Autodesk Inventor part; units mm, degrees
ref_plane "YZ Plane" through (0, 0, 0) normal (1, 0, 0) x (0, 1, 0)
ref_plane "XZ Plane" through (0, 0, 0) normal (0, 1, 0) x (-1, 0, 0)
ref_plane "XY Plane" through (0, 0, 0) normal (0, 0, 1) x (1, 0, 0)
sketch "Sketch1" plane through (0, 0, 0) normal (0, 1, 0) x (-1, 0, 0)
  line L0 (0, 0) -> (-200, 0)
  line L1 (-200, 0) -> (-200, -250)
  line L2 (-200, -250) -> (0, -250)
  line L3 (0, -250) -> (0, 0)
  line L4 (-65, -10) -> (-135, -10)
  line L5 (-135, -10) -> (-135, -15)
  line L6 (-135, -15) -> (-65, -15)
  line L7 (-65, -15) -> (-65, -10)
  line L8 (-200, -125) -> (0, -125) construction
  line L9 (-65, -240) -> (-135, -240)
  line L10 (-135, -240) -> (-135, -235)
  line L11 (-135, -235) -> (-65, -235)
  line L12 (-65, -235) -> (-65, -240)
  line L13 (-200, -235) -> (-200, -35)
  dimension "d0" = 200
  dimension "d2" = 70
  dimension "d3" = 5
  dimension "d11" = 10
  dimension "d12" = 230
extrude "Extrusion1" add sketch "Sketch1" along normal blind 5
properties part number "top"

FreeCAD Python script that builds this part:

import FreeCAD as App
import Part
import Sketcher
from FreeCAD import Vector
Q = App.Units.Quantity

doc = App.newDocument("Part")
params = doc.addObject("Spreadsheet::Sheet", "Params")
for row, (alias, value) in enumerate([
    ("sketch1_width", "200 mm"),
    ("sketch1_width2", "70 mm"),
    ("sketch1_height", "5 mm"),
    ("pad1_length", "5 mm"),
], start=1):
    params.set(f"A{row}", alias)
    params.set(f"B{row}", "=" + value)
    params.setAlias(f"B{row}", alias)

body = doc.addObject("PartDesign::Body", "Body")

# Sketch on XZ plane
sketch1 = doc.addObject("Sketcher::SketchObject", "Sketch")
body.addObject(sketch1)
sketch1.AttachmentSupport = (doc.XZ_Plane, [""])
sketch1.MapMode = "FlatFace"
sketch1.addGeometry([
    Part.LineSegment(Vector(0, -250, 0), Vector(0, 0, 0)),  # 0
    Part.LineSegment(Vector(0, 0, 0), Vector(200, 0, 0)),  # 1
    Part.LineSegment(Vector(200, 0, 0), Vector(200, -250, 0)),  # 2
    Part.LineSegment(Vector(200, -250, 0), Vector(0, -250, 0)),  # 3
    Part.LineSegment(Vector(65, -235, 0), Vector(65, -240, 0)),  # 4
    Part.LineSegment(Vector(65, -240, 0), Vector(135, -240, 0)),  # 5
    Part.LineSegment(Vector(135, -240, 0), Vector(135, -235, 0)),  # 6
    Part.LineSegment(Vector(135, -235, 0), Vector(65, -235, 0)),  # 7
    Part.LineSegment(Vector(135, -10, 0), Vector(65, -10, 0)),  # 8
    Part.LineSegment(Vector(65, -10, 0), Vector(65, -15, 0)),  # 9
    Part.LineSegment(Vector(65, -15, 0), Vector(135, -15, 0)),  # 10
    Part.LineSegment(Vector(135, -15, 0), Vector(135, -10, 0)),  # 11
], False)
sketch1.addConstraint([
    Sketcher.Constraint("Coincident", 0, 2, 1, 1),
    Sketcher.Constraint("Coincident", 1, 2, 2, 1),
    Sketcher.Constraint("Coincident", 2, 2, 3, 1),
    Sketcher.Constraint("Coincident", 3, 2, 0, 1),
    Sketcher.Constraint("Coincident", 4, 2, 5, 1),
    Sketcher.Constraint("Coincident", 5, 2, 6, 1),
    Sketcher.Constraint("Coincident", 6, 2, 7, 1),
    Sketcher.Constraint("Coincident", 7, 2, 4, 1),
    Sketcher.Constraint("Coincident", 8, 2, 9, 1),
    Sketcher.Constraint("Coincident", 9, 2, 10, 1),
    Sketcher.Constraint("Coincident", 10, 2, 11, 1),
    Sketcher.Constraint("Coincident", 11, 2, 8, 1),
    Sketcher.Constraint("Vertical", 0),
    Sketcher.Constraint("Horizontal", 1),
    Sketcher.Constraint("Vertical", 2),
    Sketcher.Constraint("Horizontal", 3),
    Sketcher.Constraint("Vertical", 4),
    Sketcher.Constraint("Horizontal", 5),
    Sketcher.Constraint("Vertical", 6),
    Sketcher.Constraint("Horizontal", 7),
    Sketcher.Constraint("Horizontal", 8),
    Sketcher.Constraint("Vertical", 9),
    Sketcher.Constraint("Horizontal", 10),
    Sketcher.Constraint("Vertical", 11),
    Sketcher.Constraint("Coincident", 0, 2, -1, 1),
    Sketcher.Constraint("Vertical", 7, 2, 8, 2),
    Sketcher.Constraint("Vertical", 6, 2, 10, 2),
    Sketcher.Constraint("Equal", 6, 9),
    Sketcher.Constraint("DistanceX", 1, 1, 1, 2, Q("200 mm")),
    Sketcher.Constraint("DistanceX", 5, 1, 5, 2, Q("70 mm")),
    Sketcher.Constraint("DistanceY", 4, 2, 4, 1, Q("5 mm")),
    Sketcher.Constraint("DistanceY", 8, 2, -1, 1, Q("10 mm")),
    Sketcher.Constraint("DistanceY", 3, 2, 4, 2, Q("10 mm")),
    Sketcher.Constraint("DistanceY", 4, 2, 8, 2, Q("230 mm")),
    Sketcher.Constraint("DistanceX", -1, 1, 4, 2, Q("65 mm")),
])
sketch1.setExpression("Constraints[28]", "Params.sketch1_width")
sketch1.setExpression("Constraints[29]", "Params.sketch1_width2")
sketch1.setExpression("Constraints[30]", "Params.sketch1_height")
pad1 = doc.addObject("PartDesign::Pad", "Pad")
body.addObject(pad1)
pad1.Profile = sketch1
pad1.setExpression("Length", "Params.pad1_length")
pad1.Reversed = True

doc.recompute()
